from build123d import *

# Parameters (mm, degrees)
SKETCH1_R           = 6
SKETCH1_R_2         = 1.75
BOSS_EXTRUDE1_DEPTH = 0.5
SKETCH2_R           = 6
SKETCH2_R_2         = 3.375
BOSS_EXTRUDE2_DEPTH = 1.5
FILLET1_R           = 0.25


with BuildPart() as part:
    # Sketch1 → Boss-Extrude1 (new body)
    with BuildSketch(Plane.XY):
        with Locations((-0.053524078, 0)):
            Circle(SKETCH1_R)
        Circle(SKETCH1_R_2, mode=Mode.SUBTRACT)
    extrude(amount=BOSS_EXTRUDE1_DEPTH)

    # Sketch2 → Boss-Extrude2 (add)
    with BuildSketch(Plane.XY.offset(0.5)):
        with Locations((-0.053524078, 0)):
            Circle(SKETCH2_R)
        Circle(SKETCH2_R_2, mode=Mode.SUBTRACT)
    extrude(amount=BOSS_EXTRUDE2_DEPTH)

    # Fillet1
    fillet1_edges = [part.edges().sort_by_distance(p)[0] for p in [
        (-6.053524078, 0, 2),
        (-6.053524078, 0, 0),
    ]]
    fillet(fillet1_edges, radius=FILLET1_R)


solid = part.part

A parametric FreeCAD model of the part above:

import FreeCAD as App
import Part
import Sketcher
from FreeCAD import Vector
Q = App.Units.Quantity


def edges_at(feature, points):
    """Names of the edges that pass closest to the given points."""
    edges = feature.Shape.Edges
    near = lambda p: min(range(len(edges)), key=lambda i: edges[i].distToShape(Part.Vertex(*p))[0])
    return sorted({f"Edge{near(p) + 1}" for p in points})

doc = App.newDocument("Part")
params = doc.addObject("Spreadsheet::Sheet", "Params")
for row, (alias, value) in enumerate([
    ("sketch1_diameter", "12 mm"),
    ("sketch1_diameter2", "3.5 mm"),
    ("pad1_length", "0.5 mm"),
    ("sketch2_diameter", "12 mm"),
    ("sketch2_diameter2", "6.75 mm"),
    ("pad2_length", "1.5 mm"),
    ("fillet_radius", "0.25 mm"),
], start=1):
    params.set(f"A{row}", alias)
    params.set(f"B{row}", "=" + value)
    params.setAlias(f"B{row}", alias)

body = doc.addObject("PartDesign::Body", "Body")

sketch1 = body.newObject("Sketcher::SketchObject", "Sketch")
sketch1.AttachmentSupport = (doc.getObject("XY_Plane"), [""])
sketch1.MapMode = "FlatFace"
sketch1.addGeometry(Part.Circle(Vector(-0.1, 0, 0), Vector(0, 0, 1), 6), False)
sketch1.addGeometry(Part.Circle(Vector(0, 0, 0), Vector(0, 0, 1), 1.8), False)
sketch1.addConstraint(Sketcher.Constraint("Coincident", 1, 3, -1, 1))
sketch1.addConstraint(Sketcher.Constraint("PointOnObject", 0, 3, -1))
sketch1.addConstraint(Sketcher.Constraint("Diameter", 0, Q("12 mm")))
sketch1.addConstraint(Sketcher.Constraint("Diameter", 1, Q("3.5 mm")))
sketch1.addConstraint(Sketcher.Constraint("DistanceX", 0, 3, -1, 1, Q("0.053524 mm")))
sketch1.setExpression("Constraints[2]", "Params.sketch1_diameter")
sketch1.setExpression("Constraints[3]", "Params.sketch1_diameter2")
pad1 = body.newObject("PartDesign::Pad", "Pad")
pad1.Profile = sketch1
pad1.setExpression("Length", "Params.pad1_length")

sketch2 = body.newObject("Sketcher::SketchObject", "Sketch001")
sketch2.AttachmentSupport = (doc.getObject("XY_Plane"), [""])
sketch2.MapMode = "FlatFace"
sketch2.AttachmentOffset = App.Placement(Vector(0, 0, 0.5), App.Rotation())
sketch2.addGeometry(Part.Circle(Vector(-0.1, 0, 0), Vector(0, 0, 1), 6), False)
sketch2.addGeometry(Part.Circle(Vector(0, 0, 0), Vector(0, 0, 1), 3.4), False)
sketch2.addConstraint(Sketcher.Constraint("Coincident", 1, 3, -1, 1))
sketch2.addConstraint(Sketcher.Constraint("PointOnObject", 0, 3, -1))
sketch2.addConstraint(Sketcher.Constraint("Diameter", 0, Q("12 mm")))
sketch2.addConstraint(Sketcher.Constraint("Diameter", 1, Q("6.75 mm")))
sketch2.addConstraint(Sketcher.Constraint("DistanceX", 0, 3, -1, 1, Q("0.053524 mm")))
sketch2.setExpression("Constraints[2]", "Params.sketch2_diameter")
sketch2.setExpression("Constraints[3]", "Params.sketch2_diameter2")
pad2 = body.newObject("PartDesign::Pad", "Pad001")
pad2.Profile = sketch2
pad2.setExpression("Length", "Params.pad2_length")
doc.recompute()

fillet = body.newObject("PartDesign::Fillet", "Fillet")
fillet.Base = (pad2, edges_at(pad2, [(-6.054, 0, 2), (-6.054, 0, 0)]))
fillet.setExpression("Radius", "Params.fillet_radius")

doc.recompute()
